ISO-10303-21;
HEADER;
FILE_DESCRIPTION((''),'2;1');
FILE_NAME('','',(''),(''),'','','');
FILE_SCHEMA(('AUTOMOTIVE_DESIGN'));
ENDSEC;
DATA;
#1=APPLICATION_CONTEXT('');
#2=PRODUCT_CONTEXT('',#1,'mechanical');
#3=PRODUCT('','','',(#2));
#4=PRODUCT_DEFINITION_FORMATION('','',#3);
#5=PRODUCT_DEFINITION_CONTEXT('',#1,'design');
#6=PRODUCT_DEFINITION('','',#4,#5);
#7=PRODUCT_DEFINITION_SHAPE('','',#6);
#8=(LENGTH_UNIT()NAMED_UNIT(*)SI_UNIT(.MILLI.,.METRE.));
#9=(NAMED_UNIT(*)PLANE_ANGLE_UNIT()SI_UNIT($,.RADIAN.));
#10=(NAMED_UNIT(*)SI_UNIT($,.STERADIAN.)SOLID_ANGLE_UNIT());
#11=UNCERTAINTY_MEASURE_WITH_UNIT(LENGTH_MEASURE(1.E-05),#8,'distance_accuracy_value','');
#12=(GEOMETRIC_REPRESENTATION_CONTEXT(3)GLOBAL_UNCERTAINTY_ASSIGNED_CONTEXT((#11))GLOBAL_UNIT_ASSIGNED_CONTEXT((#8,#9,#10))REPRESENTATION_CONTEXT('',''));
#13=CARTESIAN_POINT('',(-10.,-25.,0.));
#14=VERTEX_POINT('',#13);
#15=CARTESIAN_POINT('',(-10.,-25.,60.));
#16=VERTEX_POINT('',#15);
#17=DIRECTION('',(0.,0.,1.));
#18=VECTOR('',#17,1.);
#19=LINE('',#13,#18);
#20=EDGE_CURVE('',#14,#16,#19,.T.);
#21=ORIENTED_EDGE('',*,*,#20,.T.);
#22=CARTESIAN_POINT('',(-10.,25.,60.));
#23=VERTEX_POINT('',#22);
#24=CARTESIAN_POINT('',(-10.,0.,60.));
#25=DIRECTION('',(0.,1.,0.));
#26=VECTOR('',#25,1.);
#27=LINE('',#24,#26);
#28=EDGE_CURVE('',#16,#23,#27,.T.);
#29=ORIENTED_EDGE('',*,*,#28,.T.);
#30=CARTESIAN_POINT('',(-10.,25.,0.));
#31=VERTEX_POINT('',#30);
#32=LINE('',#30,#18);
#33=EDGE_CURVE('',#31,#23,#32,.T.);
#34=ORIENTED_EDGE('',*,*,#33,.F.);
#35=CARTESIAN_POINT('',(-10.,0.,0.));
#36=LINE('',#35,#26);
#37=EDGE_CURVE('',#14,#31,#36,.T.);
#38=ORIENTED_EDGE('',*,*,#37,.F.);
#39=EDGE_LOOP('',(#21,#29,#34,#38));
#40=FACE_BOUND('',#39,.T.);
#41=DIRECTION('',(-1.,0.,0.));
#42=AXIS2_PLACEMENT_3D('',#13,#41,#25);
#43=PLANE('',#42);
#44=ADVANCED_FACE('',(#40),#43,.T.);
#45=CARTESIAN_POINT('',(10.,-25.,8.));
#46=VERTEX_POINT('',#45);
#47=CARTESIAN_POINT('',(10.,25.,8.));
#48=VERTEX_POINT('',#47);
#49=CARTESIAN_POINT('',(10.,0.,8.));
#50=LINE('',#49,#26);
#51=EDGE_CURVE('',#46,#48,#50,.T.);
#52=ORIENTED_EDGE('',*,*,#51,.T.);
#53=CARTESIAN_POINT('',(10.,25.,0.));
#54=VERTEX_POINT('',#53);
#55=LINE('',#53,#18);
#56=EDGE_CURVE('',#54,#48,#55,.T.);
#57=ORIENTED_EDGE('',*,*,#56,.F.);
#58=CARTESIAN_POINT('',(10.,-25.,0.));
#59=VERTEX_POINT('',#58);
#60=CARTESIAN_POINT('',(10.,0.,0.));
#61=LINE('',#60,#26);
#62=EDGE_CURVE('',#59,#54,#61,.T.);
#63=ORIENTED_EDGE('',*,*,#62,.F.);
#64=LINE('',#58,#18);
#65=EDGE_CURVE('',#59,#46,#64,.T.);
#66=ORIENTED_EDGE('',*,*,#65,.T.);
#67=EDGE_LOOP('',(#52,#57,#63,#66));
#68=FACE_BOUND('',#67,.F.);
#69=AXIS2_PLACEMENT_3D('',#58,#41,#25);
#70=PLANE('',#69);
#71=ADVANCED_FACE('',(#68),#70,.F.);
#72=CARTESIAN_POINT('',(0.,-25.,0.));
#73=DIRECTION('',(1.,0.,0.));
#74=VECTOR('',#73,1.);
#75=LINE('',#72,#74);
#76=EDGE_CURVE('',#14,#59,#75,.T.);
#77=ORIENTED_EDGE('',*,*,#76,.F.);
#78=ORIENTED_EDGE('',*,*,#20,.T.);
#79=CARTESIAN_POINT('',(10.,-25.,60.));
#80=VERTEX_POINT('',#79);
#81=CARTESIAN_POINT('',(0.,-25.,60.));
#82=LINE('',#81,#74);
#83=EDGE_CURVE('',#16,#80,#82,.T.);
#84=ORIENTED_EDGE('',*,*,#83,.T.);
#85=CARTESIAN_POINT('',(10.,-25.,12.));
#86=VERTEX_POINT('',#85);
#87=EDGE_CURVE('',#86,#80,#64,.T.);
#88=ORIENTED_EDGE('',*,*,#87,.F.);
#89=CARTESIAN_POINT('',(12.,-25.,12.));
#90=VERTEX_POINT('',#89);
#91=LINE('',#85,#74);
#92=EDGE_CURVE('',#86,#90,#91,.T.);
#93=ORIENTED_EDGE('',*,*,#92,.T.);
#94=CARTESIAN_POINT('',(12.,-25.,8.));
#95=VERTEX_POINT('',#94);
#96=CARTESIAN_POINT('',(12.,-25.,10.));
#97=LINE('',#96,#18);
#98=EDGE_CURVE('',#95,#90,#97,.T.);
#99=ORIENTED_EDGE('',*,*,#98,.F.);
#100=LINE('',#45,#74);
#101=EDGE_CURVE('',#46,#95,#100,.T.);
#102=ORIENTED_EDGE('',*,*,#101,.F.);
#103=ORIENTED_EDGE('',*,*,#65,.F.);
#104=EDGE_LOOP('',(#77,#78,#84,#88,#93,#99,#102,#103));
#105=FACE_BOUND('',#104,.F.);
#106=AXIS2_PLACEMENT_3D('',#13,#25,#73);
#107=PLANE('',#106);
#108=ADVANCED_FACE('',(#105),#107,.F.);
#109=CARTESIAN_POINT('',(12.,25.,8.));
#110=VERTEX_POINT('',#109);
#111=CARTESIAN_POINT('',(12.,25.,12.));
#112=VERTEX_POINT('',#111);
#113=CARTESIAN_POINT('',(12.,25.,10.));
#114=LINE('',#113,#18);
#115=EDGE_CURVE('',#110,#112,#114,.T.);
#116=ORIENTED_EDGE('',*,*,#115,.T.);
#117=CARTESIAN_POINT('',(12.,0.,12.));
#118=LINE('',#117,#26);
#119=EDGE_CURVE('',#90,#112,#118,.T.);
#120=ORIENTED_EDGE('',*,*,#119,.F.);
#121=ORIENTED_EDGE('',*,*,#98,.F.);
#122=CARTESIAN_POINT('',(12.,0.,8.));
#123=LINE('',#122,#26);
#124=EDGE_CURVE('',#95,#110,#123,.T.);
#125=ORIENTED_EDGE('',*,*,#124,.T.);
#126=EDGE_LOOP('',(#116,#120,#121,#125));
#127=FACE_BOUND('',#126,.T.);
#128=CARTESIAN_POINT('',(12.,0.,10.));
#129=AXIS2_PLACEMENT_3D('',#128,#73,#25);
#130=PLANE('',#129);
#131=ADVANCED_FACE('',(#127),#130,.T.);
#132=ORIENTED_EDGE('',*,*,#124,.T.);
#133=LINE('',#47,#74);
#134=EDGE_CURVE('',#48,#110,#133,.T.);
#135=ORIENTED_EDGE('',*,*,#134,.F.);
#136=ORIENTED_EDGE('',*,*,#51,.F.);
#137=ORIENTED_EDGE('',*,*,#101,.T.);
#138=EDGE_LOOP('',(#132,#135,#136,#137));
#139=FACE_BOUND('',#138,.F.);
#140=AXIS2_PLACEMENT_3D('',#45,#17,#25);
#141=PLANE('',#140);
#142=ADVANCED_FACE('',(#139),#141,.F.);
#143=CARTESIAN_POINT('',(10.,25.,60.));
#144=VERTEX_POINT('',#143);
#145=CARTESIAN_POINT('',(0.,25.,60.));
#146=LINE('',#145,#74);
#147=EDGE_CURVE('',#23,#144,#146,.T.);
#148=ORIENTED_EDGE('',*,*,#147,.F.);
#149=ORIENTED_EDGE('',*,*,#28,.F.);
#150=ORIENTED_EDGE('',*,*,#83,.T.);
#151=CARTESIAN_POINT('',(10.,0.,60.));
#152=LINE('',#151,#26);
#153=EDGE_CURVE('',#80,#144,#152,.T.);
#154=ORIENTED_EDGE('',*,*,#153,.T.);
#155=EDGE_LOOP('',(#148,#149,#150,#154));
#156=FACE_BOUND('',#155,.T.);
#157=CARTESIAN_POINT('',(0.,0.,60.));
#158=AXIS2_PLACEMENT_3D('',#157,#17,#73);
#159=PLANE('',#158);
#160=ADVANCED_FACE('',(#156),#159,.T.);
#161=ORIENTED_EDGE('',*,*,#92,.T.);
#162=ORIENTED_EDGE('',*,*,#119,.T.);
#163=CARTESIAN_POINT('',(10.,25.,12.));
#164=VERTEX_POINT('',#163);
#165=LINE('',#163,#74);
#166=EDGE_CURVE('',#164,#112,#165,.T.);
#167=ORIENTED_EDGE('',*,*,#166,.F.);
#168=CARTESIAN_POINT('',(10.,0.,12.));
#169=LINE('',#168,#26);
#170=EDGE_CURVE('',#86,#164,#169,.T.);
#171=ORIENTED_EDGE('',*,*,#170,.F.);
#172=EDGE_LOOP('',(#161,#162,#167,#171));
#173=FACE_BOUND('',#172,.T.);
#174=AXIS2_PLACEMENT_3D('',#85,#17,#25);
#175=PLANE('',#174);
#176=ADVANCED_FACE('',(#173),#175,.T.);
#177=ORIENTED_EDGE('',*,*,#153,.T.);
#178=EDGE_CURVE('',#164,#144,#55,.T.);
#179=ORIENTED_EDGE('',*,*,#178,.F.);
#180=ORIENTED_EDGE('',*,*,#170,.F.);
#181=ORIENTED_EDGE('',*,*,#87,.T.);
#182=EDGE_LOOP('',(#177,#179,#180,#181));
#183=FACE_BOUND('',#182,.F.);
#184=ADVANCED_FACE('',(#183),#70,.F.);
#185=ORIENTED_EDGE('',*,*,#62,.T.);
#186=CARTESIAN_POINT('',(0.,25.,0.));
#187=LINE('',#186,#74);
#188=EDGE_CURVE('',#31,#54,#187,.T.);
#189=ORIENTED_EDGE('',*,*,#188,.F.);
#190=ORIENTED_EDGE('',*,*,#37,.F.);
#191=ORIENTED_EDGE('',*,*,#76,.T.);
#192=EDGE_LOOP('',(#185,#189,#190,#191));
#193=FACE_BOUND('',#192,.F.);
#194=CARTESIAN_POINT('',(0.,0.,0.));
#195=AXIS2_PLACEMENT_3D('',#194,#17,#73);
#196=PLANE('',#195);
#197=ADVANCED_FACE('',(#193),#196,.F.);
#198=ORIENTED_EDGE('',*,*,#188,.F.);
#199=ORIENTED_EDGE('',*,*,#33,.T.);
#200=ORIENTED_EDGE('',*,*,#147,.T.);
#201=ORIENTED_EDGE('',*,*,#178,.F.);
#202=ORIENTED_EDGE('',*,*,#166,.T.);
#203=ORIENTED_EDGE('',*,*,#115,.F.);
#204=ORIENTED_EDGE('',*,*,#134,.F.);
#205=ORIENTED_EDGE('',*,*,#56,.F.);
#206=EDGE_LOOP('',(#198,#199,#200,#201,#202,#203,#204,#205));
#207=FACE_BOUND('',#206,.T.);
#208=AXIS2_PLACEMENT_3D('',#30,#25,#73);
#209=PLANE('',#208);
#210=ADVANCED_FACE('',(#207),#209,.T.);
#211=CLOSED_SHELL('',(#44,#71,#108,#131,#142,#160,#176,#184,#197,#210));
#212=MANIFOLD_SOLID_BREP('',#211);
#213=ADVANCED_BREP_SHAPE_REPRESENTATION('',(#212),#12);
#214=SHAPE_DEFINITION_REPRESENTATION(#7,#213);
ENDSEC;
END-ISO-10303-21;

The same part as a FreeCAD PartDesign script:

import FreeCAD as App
import Part
import Sketcher


def add_polygon(sketch, points):
    """Adds a closed chain of lines whose ends are joined by coincident constraints."""
    first, n = sketch.GeometryCount, len(points)
    for a, b in zip(points, points[1:] + points[:1]):
        sketch.addGeometry(Part.LineSegment(App.Vector(*a, 0), App.Vector(*b, 0)), False)
    for i in range(n):
        sketch.addConstraint(Sketcher.Constraint("Coincident", first + i, 2, first + (i + 1) % n, 1))

doc = App.newDocument("Part")
body = doc.addObject("PartDesign::Body", "Body")

# Sketch on XY plane
sketch1 = body.newObject("Sketcher::SketchObject", "Sketch")
sketch1.AttachmentSupport = (doc.getObject("XY_Plane"), [""])
sketch1.MapMode = "FlatFace"
add_polygon(sketch1, [(-10, 25), (-10, -25), (10, -25), (10, 25)])  # lines 0-3
sketch1.addConstraint([
    Sketcher.Constraint("Vertical", 0),
    Sketcher.Constraint("Horizontal", 1),
    Sketcher.Constraint("Vertical", 2),
    Sketcher.Constraint("Horizontal", 3),
    Sketcher.Constraint("Symmetric", 0, 2, 2, 2, -1, 1),
    Sketcher.Constraint("DistanceX", 1, 1, 1, 2, 20.0),
    Sketcher.Constraint("DistanceY", 0, 2, 0, 1, 50.0),
])
pad1 = body.newObject("PartDesign::Pad", "Pad")
pad1.Profile = sketch1
pad1.Length = 60

# Sketch on YZ plane
sketch2 = body.newObject("Sketcher::SketchObject", "Sketch001")
sketch2.AttachmentSupport = (doc.getObject("YZ_Plane"), [""])
sketch2.MapMode = "FlatFace"
sketch2.AttachmentOffset = App.Placement(App.Vector(0, 0, 10), App.Rotation())
add_polygon(sketch2, [(-25, 12), (-25, 8), (25, 8), (25, 12)])  # lines 0-3
sketch2.addConstraint([
    Sketcher.Constraint("Vertical", 0),
    Sketcher.Constraint("Horizontal", 1),
    Sketcher.Constraint("Vertical", 2),
    Sketcher.Constraint("Horizontal", 3),
    Sketcher.Constraint("DistanceX", 1, 1, 1, 2, 50.0),
    Sketcher.Constraint("DistanceY", 0, 2, 0, 1, 4.0),
    Sketcher.Constraint("DistanceX", 0, 2, -1, 1, 25.0),
    Sketcher.Constraint("DistanceY", -1, 1, 0, 2, 8.0),
])
pad2 = body.newObject("PartDesign::Pad", "Pad001")
pad2.Profile = sketch2
pad2.Length = 2

doc.recompute()
